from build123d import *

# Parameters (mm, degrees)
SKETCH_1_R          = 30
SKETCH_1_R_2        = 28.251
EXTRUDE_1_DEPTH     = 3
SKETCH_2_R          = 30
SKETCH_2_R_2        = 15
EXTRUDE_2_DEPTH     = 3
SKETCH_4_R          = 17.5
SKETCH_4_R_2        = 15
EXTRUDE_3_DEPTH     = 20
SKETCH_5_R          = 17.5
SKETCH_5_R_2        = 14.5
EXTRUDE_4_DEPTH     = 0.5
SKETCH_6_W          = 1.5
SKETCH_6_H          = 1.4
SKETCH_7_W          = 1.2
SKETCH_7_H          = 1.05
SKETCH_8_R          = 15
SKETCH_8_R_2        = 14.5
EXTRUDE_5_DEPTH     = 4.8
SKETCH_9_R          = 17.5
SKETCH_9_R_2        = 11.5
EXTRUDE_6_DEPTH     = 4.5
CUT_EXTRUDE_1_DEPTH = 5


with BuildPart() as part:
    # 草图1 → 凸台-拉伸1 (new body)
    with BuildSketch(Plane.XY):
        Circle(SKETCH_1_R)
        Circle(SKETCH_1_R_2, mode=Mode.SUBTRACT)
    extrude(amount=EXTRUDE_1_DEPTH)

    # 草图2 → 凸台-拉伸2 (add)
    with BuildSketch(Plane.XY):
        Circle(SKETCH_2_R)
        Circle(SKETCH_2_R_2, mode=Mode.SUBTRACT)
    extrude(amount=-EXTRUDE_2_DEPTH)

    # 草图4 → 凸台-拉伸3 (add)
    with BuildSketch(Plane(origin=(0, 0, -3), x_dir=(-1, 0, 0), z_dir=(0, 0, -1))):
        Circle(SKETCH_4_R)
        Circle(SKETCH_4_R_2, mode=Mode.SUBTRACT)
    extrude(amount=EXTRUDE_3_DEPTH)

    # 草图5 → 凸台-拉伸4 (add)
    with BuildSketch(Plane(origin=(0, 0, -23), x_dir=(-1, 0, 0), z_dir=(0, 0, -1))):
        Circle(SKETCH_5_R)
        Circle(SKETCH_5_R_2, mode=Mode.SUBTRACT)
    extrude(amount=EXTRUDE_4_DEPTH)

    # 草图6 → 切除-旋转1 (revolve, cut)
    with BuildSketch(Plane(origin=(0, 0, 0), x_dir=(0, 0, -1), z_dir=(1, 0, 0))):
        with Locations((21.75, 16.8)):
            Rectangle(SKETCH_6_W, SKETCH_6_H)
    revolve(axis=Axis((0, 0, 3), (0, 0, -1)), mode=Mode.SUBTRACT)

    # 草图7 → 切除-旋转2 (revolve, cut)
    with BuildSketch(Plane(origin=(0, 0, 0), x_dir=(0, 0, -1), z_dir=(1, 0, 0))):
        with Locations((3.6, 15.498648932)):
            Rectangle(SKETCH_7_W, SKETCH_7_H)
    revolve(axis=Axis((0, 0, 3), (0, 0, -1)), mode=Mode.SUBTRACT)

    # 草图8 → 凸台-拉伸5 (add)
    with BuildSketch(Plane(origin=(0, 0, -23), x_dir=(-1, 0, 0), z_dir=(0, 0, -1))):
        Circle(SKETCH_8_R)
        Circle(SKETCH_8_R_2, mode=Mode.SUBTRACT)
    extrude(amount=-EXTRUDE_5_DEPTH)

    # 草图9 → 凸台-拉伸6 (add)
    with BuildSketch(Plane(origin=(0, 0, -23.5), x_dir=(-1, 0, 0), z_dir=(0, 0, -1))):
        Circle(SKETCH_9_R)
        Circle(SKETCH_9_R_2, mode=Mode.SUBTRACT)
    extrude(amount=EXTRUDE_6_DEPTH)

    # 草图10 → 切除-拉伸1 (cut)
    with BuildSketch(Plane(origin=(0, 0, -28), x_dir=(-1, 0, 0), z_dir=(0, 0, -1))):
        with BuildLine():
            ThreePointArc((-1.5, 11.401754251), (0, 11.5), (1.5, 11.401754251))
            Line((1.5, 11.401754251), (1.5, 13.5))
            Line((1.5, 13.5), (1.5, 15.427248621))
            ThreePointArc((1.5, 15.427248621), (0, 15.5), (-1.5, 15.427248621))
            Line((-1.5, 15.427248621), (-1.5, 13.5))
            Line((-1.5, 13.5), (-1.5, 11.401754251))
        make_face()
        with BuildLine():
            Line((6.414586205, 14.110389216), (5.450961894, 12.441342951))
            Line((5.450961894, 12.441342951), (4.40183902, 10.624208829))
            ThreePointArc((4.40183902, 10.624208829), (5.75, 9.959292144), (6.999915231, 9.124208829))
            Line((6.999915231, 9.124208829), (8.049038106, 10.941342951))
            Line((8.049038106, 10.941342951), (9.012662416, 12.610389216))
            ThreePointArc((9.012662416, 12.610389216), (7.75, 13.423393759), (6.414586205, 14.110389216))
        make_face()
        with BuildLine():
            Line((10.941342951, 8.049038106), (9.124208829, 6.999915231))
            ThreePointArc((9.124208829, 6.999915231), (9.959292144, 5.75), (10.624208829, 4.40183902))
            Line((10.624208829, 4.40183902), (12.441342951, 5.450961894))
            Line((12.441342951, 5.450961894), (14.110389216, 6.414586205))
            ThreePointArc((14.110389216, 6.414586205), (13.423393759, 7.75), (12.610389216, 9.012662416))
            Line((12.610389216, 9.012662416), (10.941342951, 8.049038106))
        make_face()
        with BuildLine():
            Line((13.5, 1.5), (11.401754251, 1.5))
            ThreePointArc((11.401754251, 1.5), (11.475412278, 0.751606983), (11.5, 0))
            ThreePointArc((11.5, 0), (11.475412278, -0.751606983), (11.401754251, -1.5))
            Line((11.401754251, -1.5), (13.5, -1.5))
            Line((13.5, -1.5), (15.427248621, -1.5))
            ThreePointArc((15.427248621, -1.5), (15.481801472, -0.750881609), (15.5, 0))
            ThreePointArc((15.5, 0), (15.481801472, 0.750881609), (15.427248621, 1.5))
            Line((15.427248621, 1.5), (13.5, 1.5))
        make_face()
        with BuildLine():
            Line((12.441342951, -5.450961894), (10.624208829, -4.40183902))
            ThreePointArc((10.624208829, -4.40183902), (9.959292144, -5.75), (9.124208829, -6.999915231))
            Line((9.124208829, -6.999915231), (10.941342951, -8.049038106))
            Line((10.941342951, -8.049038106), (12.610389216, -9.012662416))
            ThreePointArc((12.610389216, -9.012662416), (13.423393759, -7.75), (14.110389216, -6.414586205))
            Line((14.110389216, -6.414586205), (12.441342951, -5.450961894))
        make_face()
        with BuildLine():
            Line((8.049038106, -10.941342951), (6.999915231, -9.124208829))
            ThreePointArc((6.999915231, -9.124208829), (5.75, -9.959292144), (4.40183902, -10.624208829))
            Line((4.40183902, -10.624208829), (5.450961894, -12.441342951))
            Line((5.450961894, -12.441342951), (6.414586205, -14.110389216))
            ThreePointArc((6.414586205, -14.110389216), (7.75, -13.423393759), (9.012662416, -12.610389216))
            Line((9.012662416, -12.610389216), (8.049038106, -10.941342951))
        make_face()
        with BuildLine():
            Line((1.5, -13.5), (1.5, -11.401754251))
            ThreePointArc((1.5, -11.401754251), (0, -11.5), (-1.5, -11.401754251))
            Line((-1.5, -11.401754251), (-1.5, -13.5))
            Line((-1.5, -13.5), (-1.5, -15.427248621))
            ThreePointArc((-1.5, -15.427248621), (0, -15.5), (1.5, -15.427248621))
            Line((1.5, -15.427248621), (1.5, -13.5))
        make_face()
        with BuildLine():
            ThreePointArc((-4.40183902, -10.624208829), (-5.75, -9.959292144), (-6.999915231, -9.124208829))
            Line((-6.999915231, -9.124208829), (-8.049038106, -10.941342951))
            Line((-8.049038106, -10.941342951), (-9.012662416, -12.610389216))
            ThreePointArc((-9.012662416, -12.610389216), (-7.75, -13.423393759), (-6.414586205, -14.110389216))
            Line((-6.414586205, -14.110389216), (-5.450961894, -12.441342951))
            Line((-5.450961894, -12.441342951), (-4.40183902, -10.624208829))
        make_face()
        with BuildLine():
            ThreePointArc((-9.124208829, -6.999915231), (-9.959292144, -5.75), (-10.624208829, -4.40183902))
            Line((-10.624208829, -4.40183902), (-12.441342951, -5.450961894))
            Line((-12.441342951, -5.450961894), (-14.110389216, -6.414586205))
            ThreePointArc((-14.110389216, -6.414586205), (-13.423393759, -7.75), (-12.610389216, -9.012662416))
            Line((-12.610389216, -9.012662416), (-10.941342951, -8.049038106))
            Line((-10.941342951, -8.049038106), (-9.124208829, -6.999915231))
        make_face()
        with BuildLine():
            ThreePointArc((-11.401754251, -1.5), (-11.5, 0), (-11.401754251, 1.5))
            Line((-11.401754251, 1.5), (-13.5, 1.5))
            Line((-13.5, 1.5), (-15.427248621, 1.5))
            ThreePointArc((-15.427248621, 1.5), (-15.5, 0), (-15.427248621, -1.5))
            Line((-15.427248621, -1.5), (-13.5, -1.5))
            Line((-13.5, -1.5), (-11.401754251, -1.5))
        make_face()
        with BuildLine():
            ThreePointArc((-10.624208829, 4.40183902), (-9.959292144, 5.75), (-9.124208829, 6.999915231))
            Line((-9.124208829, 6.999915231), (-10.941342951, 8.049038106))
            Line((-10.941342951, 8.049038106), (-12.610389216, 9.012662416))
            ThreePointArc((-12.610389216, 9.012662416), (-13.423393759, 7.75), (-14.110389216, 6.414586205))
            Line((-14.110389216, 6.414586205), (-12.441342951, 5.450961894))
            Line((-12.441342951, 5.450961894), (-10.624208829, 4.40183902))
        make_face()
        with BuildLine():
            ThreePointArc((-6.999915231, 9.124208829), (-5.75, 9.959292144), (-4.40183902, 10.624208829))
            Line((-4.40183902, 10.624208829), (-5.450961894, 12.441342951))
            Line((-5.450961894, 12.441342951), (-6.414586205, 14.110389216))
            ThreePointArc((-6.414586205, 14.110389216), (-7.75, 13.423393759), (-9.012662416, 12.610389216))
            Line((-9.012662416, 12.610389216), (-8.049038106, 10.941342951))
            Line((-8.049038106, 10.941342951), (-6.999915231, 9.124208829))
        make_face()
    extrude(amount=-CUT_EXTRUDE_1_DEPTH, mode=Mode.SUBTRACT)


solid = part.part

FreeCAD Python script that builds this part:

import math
import FreeCAD as App
import Part
import Sketcher
Q = App.Units.Quantity


def add_polygon(sketch, points):
    """Adds a closed chain of lines whose ends are joined by coincident constraints."""
    first, n = sketch.GeometryCount, len(points)
    for a, b in zip(points, points[1:] + points[:1]):
        sketch.addGeometry(Part.LineSegment(App.Vector(*a, 0), App.Vector(*b, 0)), False)
    for i in range(n):
        sketch.addConstraint(Sketcher.Constraint("Coincident", first + i, 2, first + (i + 1) % n, 1))

doc = App.newDocument("Part")
body = doc.addObject("PartDesign::Body", "Body")

# Sketch on XY plane
sketch1 = doc.addObject("Sketcher::SketchObject", "Sketch")
body.addObject(sketch1)
sketch1.AttachmentSupport = (doc.XY_Plane, [""])
sketch1.MapMode = "FlatFace"
sketch1.addGeometry([
    Part.Circle(App.Vector(0, 0, 0), App.Vector(0, 0, 1), 30),
    Part.Circle(App.Vector(0, 0, 0), App.Vector(0, 0, 1), 28),
], False)
sketch1.addConstraint([
    Sketcher.Constraint("Coincident", 0, 3, -1, 1),
    Sketcher.Constraint("Coincident", 1, 3, -1, 1),
    Sketcher.Constraint("Diameter", 0, Q("60 mm")),
    Sketcher.Constraint("Diameter", 1, Q("56.502 mm")),
])
pad1 = doc.addObject("PartDesign::Pad", "Pad")
body.addObject(pad1)
pad1.Profile = sketch1
pad1.Length = 3

# Sketch on XY plane
sketch2 = doc.addObject("Sketcher::SketchObject", "Sketch001")
body.addObject(sketch2)
sketch2.AttachmentSupport = (doc.XY_Plane, [""])
sketch2.MapMode = "FlatFace"
sketch2.addGeometry([
    Part.Circle(App.Vector(0, 0, 0), App.Vector(0, 0, 1), 30),
    Part.Circle(App.Vector(0, 0, 0), App.Vector(0, 0, 1), 15),
], False)
sketch2.addConstraint([
    Sketcher.Constraint("Coincident", 0, 3, -1, 1),
    Sketcher.Constraint("Coincident", 1, 3, -1, 1),
    Sketcher.Constraint("Diameter", 0, Q("60 mm")),
    Sketcher.Constraint("Diameter", 1, Q("30 mm")),
])
pad2 = doc.addObject("PartDesign::Pad", "Pad001")
body.addObject(pad2)
pad2.Profile = sketch2
pad2.Length = 3
pad2.Reversed = True

# Sketch on XY plane
sketch3 = doc.addObject("Sketcher::SketchObject", "Sketch002")
body.addObject(sketch3)
sketch3.AttachmentSupport = (doc.XY_Plane, [""])
sketch3.MapMode = "FlatFace"
sketch3.AttachmentOffset = App.Placement(App.Vector(0, 0, -3), App.Rotation())
sketch3.addGeometry([
    Part.Circle(App.Vector(0, 0, 0), App.Vector(0, 0, 1), 18),
    Part.Circle(App.Vector(0, 0, 0), App.Vector(0, 0, 1), 15),
], False)
sketch3.addConstraint([
    Sketcher.Constraint("Coincident", 0, 3, -1, 1),
    Sketcher.Constraint("Coincident", 1, 3, -1, 1),
    Sketcher.Constraint("Diameter", 0, Q("35 mm")),
    Sketcher.Constraint("Diameter", 1, Q("30 mm")),
])
pad3 = doc.addObject("PartDesign::Pad", "Pad002")
body.addObject(pad3)
pad3.Profile = sketch3
pad3.Length = 20
pad3.Reversed = True

# Sketch on XY plane
sketch4 = doc.addObject("Sketcher::SketchObject", "Sketch003")
body.addObject(sketch4)
sketch4.AttachmentSupport = (doc.XY_Plane, [""])
sketch4.MapMode = "FlatFace"
sketch4.AttachmentOffset = App.Placement(App.Vector(0, 0, -23), App.Rotation())
sketch4.addGeometry([
    Part.Circle(App.Vector(0, 0, 0), App.Vector(0, 0, 1), 18),
    Part.Circle(App.Vector(0, 0, 0), App.Vector(0, 0, 1), 14),
], False)
sketch4.addConstraint([
    Sketcher.Constraint("Coincident", 0, 3, -1, 1),
    Sketcher.Constraint("Coincident", 1, 3, -1, 1),
    Sketcher.Constraint("Diameter", 0, Q("35 mm")),
    Sketcher.Constraint("Diameter", 1, Q("29 mm")),
])
pad4 = doc.addObject("PartDesign::Pad", "Pad003")
body.addObject(pad4)
pad4.Profile = sketch4
pad4.Length = 0.5
pad4.Reversed = True

# Sketch on YZ plane
sketch5 = doc.addObject("Sketcher::SketchObject", "Sketch004")
body.addObject(sketch5)
sketch5.AttachmentSupport = (doc.YZ_Plane, [""])
sketch5.MapMode = "FlatFace"
add_polygon(sketch5, [(17.5, -21), (16.1, -21), (16.1, -22.5), (17.5, -22.5)])  # lines 0-3
sketch5.addConstraint([
    Sketcher.Constraint("Horizontal", 0),
    Sketcher.Constraint("Vertical", 1),
    Sketcher.Constraint("Horizontal", 2),
    Sketcher.Constraint("Vertical", 3),
    Sketcher.Constraint("DistanceX", 0, 2, 0, 1, Q("1.4 mm")),
    Sketcher.Constraint("DistanceY", 1, 2, 1, 1, Q("1.5 mm")),
    Sketcher.Constraint("DistanceY", 0, 2, -1, 1, Q("21 mm")),
    Sketcher.Constraint("DistanceX", -1, 1, 0, 2, Q("16.1 mm")),
])
groove = doc.addObject("PartDesign::Groove", "Groove")
body.addObject(groove)
groove.Profile = sketch5
groove.ReferenceAxis = (sketch5, ["V_Axis"])
groove.Angle = 360

# Sketch on YZ plane
sketch6 = doc.addObject("Sketcher::SketchObject", "Sketch005")
body.addObject(sketch6)
sketch6.AttachmentSupport = (doc.YZ_Plane, [""])
sketch6.MapMode = "FlatFace"
add_polygon(sketch6, [(16, -3), (15, -3), (15, -4.2), (16, -4.2)])  # lines 0-3
sketch6.addConstraint([
    Sketcher.Constraint("Horizontal", 0),
    Sketcher.Constraint("Vertical", 1),
    Sketcher.Constraint("Horizontal", 2),
    Sketcher.Constraint("Vertical", 3),
    Sketcher.Constraint("DistanceY", 1, 2, 1, 1, Q("1.2 mm")),
    Sketcher.Constraint("DistanceY", 0, 2, -1, 1, Q("3 mm")),
    Sketcher.Constraint("DistanceX", 0, 2, 0, 1, Q("1.05 mm")),
    Sketcher.Constraint("DistanceX", -1, 1, 0, 2, Q("14.973649 mm")),
])
groove2 = doc.addObject("PartDesign::Groove", "Groove001")
body.addObject(groove2)
groove2.Profile = sketch6
groove2.ReferenceAxis = (sketch6, ["V_Axis"])
groove2.Angle = 360

# Sketch on XY plane
sketch7 = doc.addObject("Sketcher::SketchObject", "Sketch006")
body.addObject(sketch7)
sketch7.AttachmentSupport = (doc.XY_Plane, [""])
sketch7.MapMode = "FlatFace"
sketch7.AttachmentOffset = App.Placement(App.Vector(0, 0, -23), App.Rotation())
sketch7.addGeometry([
    Part.Circle(App.Vector(0, 0, 0), App.Vector(0, 0, 1), 15),
    Part.Circle(App.Vector(0, 0, 0), App.Vector(0, 0, 1), 14),
], False)
sketch7.addConstraint([
    Sketcher.Constraint("Coincident", 0, 3, -1, 1),
    Sketcher.Constraint("Coincident", 1, 3, -1, 1),
    Sketcher.Constraint("Diameter", 0, Q("30 mm")),
    Sketcher.Constraint("Diameter", 1, Q("29 mm")),
])
pad5 = doc.addObject("PartDesign::Pad", "Pad004")
body.addObject(pad5)
pad5.Profile = sketch7
pad5.Length = 4.8

# Sketch on XY plane
sketch8 = doc.addObject("Sketcher::SketchObject", "Sketch007")
body.addObject(sketch8)
sketch8.AttachmentSupport = (doc.XY_Plane, [""])
sketch8.MapMode = "FlatFace"
sketch8.AttachmentOffset = App.Placement(App.Vector(0, 0, -23.5), App.Rotation())
sketch8.addGeometry([
    Part.Circle(App.Vector(0, 0, 0), App.Vector(0, 0, 1), 18),
    Part.Circle(App.Vector(0, 0, 0), App.Vector(0, 0, 1), 12),
], False)
sketch8.addConstraint([
    Sketcher.Constraint("Coincident", 0, 3, -1, 1),
    Sketcher.Constraint("Coincident", 1, 3, -1, 1),
    Sketcher.Constraint("Diameter", 0, Q("35 mm")),
    Sketcher.Constraint("Diameter", 1, Q("23 mm")),
])
pad6 = doc.addObject("PartDesign::Pad", "Pad005")
body.addObject(pad6)
pad6.Profile = sketch8
pad6.Length = 4.5
pad6.Reversed = True

# Sketch on XY plane
sketch9 = doc.addObject("Sketcher::SketchObject", "Sketch008")
body.addObject(sketch9)
sketch9.AttachmentSupport = (doc.XY_Plane, [""])
sketch9.MapMode = "FlatFace"
sketch9.AttachmentOffset = App.Placement(App.Vector(0, 0, -28), App.Rotation())
sketch9.addGeometry([
    Part.ArcOfCircle(Part.Circle(App.Vector(0, 0, 0), App.Vector(0, 0, 1), 11.5), math.radians(82.51), math.radians(97.49)),  # 0
    Part.LineSegment(App.Vector(-1.5, 11.4, 0), App.Vector(-1.5, 15.4, 0)),  # 1
    Part.ArcOfCircle(Part.Circle(App.Vector(0, 0, 0), App.Vector(0, 0, 1), 15.5), math.radians(84.45), math.radians(95.55)),  # 2
    Part.LineSegment(App.Vector(1.5, 15.4, 0), App.Vector(1.5, 11.4, 0)),  # 3
    Part.LineSegment(App.Vector(-6.4, 14.1, 0), App.Vector(-5.5, 12.4, 0)),  # 4
    Part.LineSegment(App.Vector(-5.5, 12.4, 0), App.Vector(-4.4, 10.6, 0)),  # 5
    Part.ArcOfCircle(Part.Circle(App.Vector(0, 0, 0), App.Vector(0, 0, 1), 11.5), math.radians(112.51), math.radians(127.49)),  # 6
    Part.LineSegment(App.Vector(-7, 9.1, 0), App.Vector(-8, 10.9, 0)),  # 7
    Part.LineSegment(App.Vector(-8, 10.9, 0), App.Vector(-9, 12.6, 0)),  # 8
    Part.ArcOfCircle(Part.Circle(App.Vector(0, 0, 0), App.Vector(0, 0, 1), 15.5), math.radians(114.45), math.radians(125.55)),  # 9
    Part.LineSegment(App.Vector(-10.9, 8, 0), App.Vector(-9.1, 7, 0)),  # 10
    Part.ArcOfCircle(Part.Circle(App.Vector(0, 0, 0), App.Vector(0, 0, 1), 11.5), math.radians(142.51), math.radians(157.49)),  # 11
    Part.LineSegment(App.Vector(-10.6, 4.4, 0), App.Vector(-12.4, 5.5, 0)),  # 12
    Part.LineSegment(App.Vector(-12.4, 5.5, 0), App.Vector(-14.1, 6.4, 0)),  # 13
    Part.ArcOfCircle(Part.Circle(App.Vector(0, 0, 0), App.Vector(0, 0, 1), 15.5), math.radians(144.45), math.radians(155.55)),  # 14
    Part.LineSegment(App.Vector(-12.6, 9, 0), App.Vector(-10.9, 8, 0)),  # 15
    Part.ArcOfCircle(Part.Circle(App.Vector(0, 0, 0), App.Vector(0, 0, 1), 11.5), math.radians(172.51), math.radians(180)),  # 16
    Part.ArcOfCircle(Part.Circle(App.Vector(0, 0, 0), App.Vector(0, 0, 1), 11.5), math.radians(180), math.radians(187.49)),  # 17
    Part.LineSegment(App.Vector(-11.4, -1.5, 0), App.Vector(-15.4, -1.5, 0)),  # 18
    Part.ArcOfCircle(Part.Circle(App.Vector(0, 0, 0), App.Vector(0, 0, 1), 15.5), math.radians(180), math.radians(185.55)),  # 19
    Part.ArcOfCircle(Part.Circle(App.Vector(0, 0, 0), App.Vector(0, 0, 1), 15.5), math.radians(174.45), math.radians(180)),  # 20
    Part.LineSegment(App.Vector(-15.4, 1.5, 0), App.Vector(-11.4, 1.5, 0)),  # 21
    Part.LineSegment(App.Vector(-12.4, -5.5, 0), App.Vector(-10.6, -4.4, 0)),  # 22
    Part.ArcOfCircle(Part.Circle(App.Vector(0, 0, 0), App.Vector(0, 0, 1), 11.5), math.radians(-157.49), math.radians(-142.51)),  # 23
    Part.LineSegment(App.Vector(-9.1, -7, 0), App.Vector(-10.9, -8, 0)),  # 24
    Part.LineSegment(App.Vector(-10.9, -8, 0), App.Vector(-12.6, -9, 0)),  # 25
    Part.ArcOfCircle(Part.Circle(App.Vector(0, 0, 0), App.Vector(0, 0, 1), 15.5), math.radians(-155.55), math.radians(-144.45)),  # 26
    Part.LineSegment(App.Vector(-14.1, -6.4, 0), App.Vector(-12.4, -5.5, 0)),  # 27
    Part.LineSegment(App.Vector(-8, -10.9, 0), App.Vector(-7, -9.1, 0)),  # 28
    Part.ArcOfCircle(Part.Circle(App.Vector(0, 0, 0), App.Vector(0, 0, 1), 11.5), math.radians(-127.49), math.radians(-112.51)),  # 29
    Part.LineSegment(App.Vector(-4.4, -10.6, 0), App.Vector(-5.5, -12.4, 0)),  # 30
    Part.LineSegment(App.Vector(-5.5, -12.4, 0), App.Vector(-6.4, -14.1, 0)),  # 31
    Part.ArcOfCircle(Part.Circle(App.Vector(0, 0, 0), App.Vector(0, 0, 1), 15.5), math.radians(-125.55), math.radians(-114.45)),  # 32
    Part.LineSegment(App.Vector(-9, -12.6, 0), App.Vector(-8, -10.9, 0)),  # 33
    Part.ArcOfCircle(Part.Circle(App.Vector(0, 0, 0), App.Vector(0, 0, 1), 11.5), math.radians(-97.49), math.radians(-82.51)),  # 34
    Part.LineSegment(App.Vector(1.5, -11.4, 0), App.Vector(1.5, -15.4, 0)),  # 35
    Part.ArcOfCircle(Part.Circle(App.Vector(0, 0, 0), App.Vector(0, 0, 1), 15.5), math.radians(-95.55), math.radians(-84.45)),  # 36
    Part.LineSegment(App.Vector(-1.5, -15.4, 0), App.Vector(-1.5, -11.4, 0)),  # 37
    Part.ArcOfCircle(Part.Circle(App.Vector(0, 0, 0), App.Vector(0, 0, 1), 11.5), math.radians(-67.49), math.radians(-52.51)),  # 38
    Part.LineSegment(App.Vector(7, -9.1, 0), App.Vector(8, -10.9, 0)),  # 39
    Part.LineSegment(App.Vector(8, -10.9, 0), App.Vector(9, -12.6, 0)),  # 40
    Part.ArcOfCircle(Part.Circle(App.Vector(0, 0, 0), App.Vector(0, 0, 1), 15.5), math.radians(-65.55), math.radians(-54.45)),  # 41
    Part.LineSegment(App.Vector(6.4, -14.1, 0), App.Vector(5.5, -12.4, 0)),  # 42
    Part.LineSegment(App.Vector(5.5, -12.4, 0), App.Vector(4.4, -10.6, 0)),  # 43
    Part.ArcOfCircle(Part.Circle(App.Vector(0, 0, 0), App.Vector(0, 0, 1), 11.5), math.radians(-37.49), math.radians(-22.51)),  # 44
    Part.LineSegment(App.Vector(10.6, -4.4, 0), App.Vector(12.4, -5.5, 0)),  # 45
    Part.LineSegment(App.Vector(12.4, -5.5, 0), App.Vector(14.1, -6.4, 0)),  # 46
    Part.ArcOfCircle(Part.Circle(App.Vector(0, 0, 0), App.Vector(0, 0, 1), 15.5), math.radians(-35.55), math.radians(-24.45)),  # 47
    Part.LineSegment(App.Vector(12.6, -9, 0), App.Vector(10.9, -8, 0)),  # 48
    Part.LineSegment(App.Vector(10.9, -8, 0), App.Vector(9.1, -7, 0)),  # 49
    Part.ArcOfCircle(Part.Circle(App.Vector(0, 0, 0), App.Vector(0, 0, 1), 11.5), math.radians(-7.49), math.radians(7.49)),  # 50
    Part.LineSegment(App.Vector(11.4, 1.5, 0), App.Vector(15.4, 1.5, 0)),  # 51
    Part.ArcOfCircle(Part.Circle(App.Vector(0, 0, 0), App.Vector(0, 0, 1), 15.5), math.radians(-5.55), math.radians(5.55)),  # 52
    Part.LineSegment(App.Vector(15.4, -1.5, 0), App.Vector(11.4, -1.5, 0)),  # 53
    Part.ArcOfCircle(Part.Circle(App.Vector(0, 0, 0), App.Vector(0, 0, 1), 11.5), math.radians(22.51), math.radians(37.49)),  # 54
    Part.LineSegment(App.Vector(9.1, 7, 0), App.Vector(10.9, 8, 0)),  # 55
    Part.LineSegment(App.Vector(10.9, 8, 0), App.Vector(12.6, 9, 0)),  # 56
    Part.ArcOfCircle(Part.Circle(App.Vector(0, 0, 0), App.Vector(0, 0, 1), 15.5), math.radians(24.45), math.radians(35.55)),  # 57
    Part.LineSegment(App.Vector(14.1, 6.4, 0), App.Vector(12.4, 5.5, 0)),  # 58
    Part.LineSegment(App.Vector(12.4, 5.5, 0), App.Vector(10.6, 4.4, 0)),  # 59
    Part.ArcOfCircle(Part.Circle(App.Vector(0, 0, 0), App.Vector(0, 0, 1), 11.5), math.radians(52.51), math.radians(67.49)),  # 60
    Part.LineSegment(App.Vector(4.4, 10.6, 0), App.Vector(5.5, 12.4, 0)),  # 61
    Part.LineSegment(App.Vector(5.5, 12.4, 0), App.Vector(6.4, 14.1, 0)),  # 62
    Part.ArcOfCircle(Part.Circle(App.Vector(0, 0, 0), App.Vector(0, 0, 1), 15.5), math.radians(54.45), math.radians(65.55)),  # 63
    Part.LineSegment(App.Vector(9, 12.6, 0), App.Vector(8, 10.9, 0)),  # 64
    Part.LineSegment(App.Vector(8, 10.9, 0), App.Vector(7, 9.1, 0)),  # 65
], False)
sketch9.addConstraint([
    Sketcher.Constraint("Coincident", 0, 2, 1, 1),
    Sketcher.Constraint("Coincident", 1, 2, 2, 2),
    Sketcher.Constraint("Coincident", 2, 1, 3, 1),
    Sketcher.Constraint("Coincident", 3, 2, 0, 1),
    Sketcher.Constraint("Coincident", 4, 2, 5, 1),
    Sketcher.Constraint("Coincident", 5, 2, 6, 1),
    Sketcher.Constraint("Coincident", 6, 2, 7, 1),
    Sketcher.Constraint("Coincident", 7, 2, 8, 1),
    Sketcher.Constraint("Coincident", 8, 2, 9, 2),
    Sketcher.Constraint("Coincident", 9, 1, 4, 1),
    Sketcher.Constraint("Coincident", 10, 2, 11, 1),
    Sketcher.Constraint("Coincident", 11, 2, 12, 1),
    Sketcher.Constraint("Coincident", 12, 2, 13, 1),
    Sketcher.Constraint("Coincident", 13, 2, 14, 2),
    Sketcher.Constraint("Coincident", 14, 1, 15, 1),
    Sketcher.Constraint("Coincident", 15, 2, 10, 1),
    Sketcher.Constraint("Tangent", 16, 2, 17, 1),
    Sketcher.Constraint("Coincident", 17, 2, 18, 1),
    Sketcher.Constraint("Coincident", 18, 2, 19, 2),
    Sketcher.Constraint("Tangent", 19, 1, 20, 2),
    Sketcher.Constraint("Coincident", 20, 1, 21, 1),
    Sketcher.Constraint("Coincident", 21, 2, 16, 1),
    Sketcher.Constraint("Coincident", 22, 2, 23, 1),
    Sketcher.Constraint("Coincident", 23, 2, 24, 1),
    Sketcher.Constraint("Coincident", 24, 2, 25, 1),
    Sketcher.Constraint("Coincident", 25, 2, 26, 2),
    Sketcher.Constraint("Coincident", 26, 1, 27, 1),
    Sketcher.Constraint("Coincident", 27, 2, 22, 1),
    Sketcher.Constraint("Coincident", 28, 2, 29, 1),
    Sketcher.Constraint("Coincident", 29, 2, 30, 1),
    Sketcher.Constraint("Coincident", 30, 2, 31, 1),
    Sketcher.Constraint("Coincident", 31, 2, 32, 2),
    Sketcher.Constraint("Coincident", 32, 1, 33, 1),
    Sketcher.Constraint("Coincident", 33, 2, 28, 1),
    Sketcher.Constraint("Coincident", 34, 2, 35, 1),
    Sketcher.Constraint("Coincident", 35, 2, 36, 2),
    Sketcher.Constraint("Coincident", 36, 1, 37, 1),
    Sketcher.Constraint("Coincident", 37, 2, 34, 1),
    Sketcher.Constraint("Coincident", 38, 2, 39, 1),
    Sketcher.Constraint("Coincident", 39, 2, 40, 1),
    Sketcher.Constraint("Coincident", 40, 2, 41, 2),
    Sketcher.Constraint("Coincident", 41, 1, 42, 1),
    Sketcher.Constraint("Coincident", 42, 2, 43, 1),
    Sketcher.Constraint("Coincident", 43, 2, 38, 1),
    Sketcher.Constraint("Coincident", 44, 2, 45, 1),
    Sketcher.Constraint("Coincident", 45, 2, 46, 1),
    Sketcher.Constraint("Coincident", 46, 2, 47, 2),
    Sketcher.Constraint("Coincident", 47, 1, 48, 1),
    Sketcher.Constraint("Coincident", 48, 2, 49, 1),
    Sketcher.Constraint("Coincident", 49, 2, 44, 1),
    Sketcher.Constraint("Coincident", 50, 2, 51, 1),
    Sketcher.Constraint("Coincident", 51, 2, 52, 2),
    Sketcher.Constraint("Coincident", 52, 1, 53, 1),
    Sketcher.Constraint("Coincident", 53, 2, 50, 1),
    Sketcher.Constraint("Coincident", 54, 2, 55, 1),
    Sketcher.Constraint("Coincident", 55, 2, 56, 1),
    Sketcher.Constraint("Coincident", 56, 2, 57, 2),
    Sketcher.Constraint("Coincident", 57, 1, 58, 1),
    Sketcher.Constraint("Coincident", 58, 2, 59, 1),
    Sketcher.Constraint("Coincident", 59, 2, 54, 1),
    Sketcher.Constraint("Coincident", 60, 2, 61, 1),
    Sketcher.Constraint("Coincident", 61, 2, 62, 1),
    Sketcher.Constraint("Coincident", 62, 2, 63, 2),
    Sketcher.Constraint("Coincident", 63, 1, 64, 1),
    Sketcher.Constraint("Coincident", 64, 2, 65, 1),
    Sketcher.Constraint("Coincident", 65, 2, 60, 1),
    Sketcher.Constraint("Vertical", 1),
    Sketcher.Constraint("Vertical", 3),
    Sketcher.Constraint("Horizontal", 18),
    Sketcher.Constraint("Horizontal", 21),
    Sketcher.Constraint("Vertical", 35),
    Sketcher.Constraint("Vertical", 37),
    Sketcher.Constraint("Horizontal", 51),
    Sketcher.Constraint("Horizontal", 53),
    Sketcher.Constraint("Coincident", 0, 3, -1, 1),
    Sketcher.Constraint("Coincident", 2, 3, -1, 1),
    Sketcher.Constraint("Coincident", 6, 3, -1, 1),
    Sketcher.Constraint("Coincident", 9, 3, -1, 1),
    Sketcher.Constraint("Coincident", 11, 3, -1, 1),
    Sketcher.Constraint("Coincident", 14, 3, -1, 1),
    Sketcher.Constraint("Coincident", 16, 3, -1, 1),
    Sketcher.Constraint("Coincident", 19, 3, -1, 1),
    Sketcher.Constraint("Coincident", 23, 3, -1, 1),
    Sketcher.Constraint("Coincident", 26, 3, -1, 1),
    Sketcher.Constraint("Coincident", 29, 3, -1, 1),
    Sketcher.Constraint("Coincident", 32, 3, -1, 1),
    Sketcher.Constraint("Coincident", 34, 3, -1, 1),
    Sketcher.Constraint("Coincident", 36, 3, -1, 1),
    Sketcher.Constraint("Coincident", 38, 3, -1, 1),
    Sketcher.Constraint("Coincident", 41, 3, -1, 1),
    Sketcher.Constraint("Coincident", 44, 3, -1, 1),
    Sketcher.Constraint("Coincident", 47, 3, -1, 1),
    Sketcher.Constraint("Coincident", 50, 3, -1, 1),
    Sketcher.Constraint("Coincident", 52, 3, -1, 1),
    Sketcher.Constraint("Coincident", 54, 3, -1, 1),
    Sketcher.Constraint("Coincident", 57, 3, -1, 1),
    Sketcher.Constraint("Coincident", 60, 3, -1, 1),
    Sketcher.Constraint("Coincident", 63, 3, -1, 1),
    Sketcher.Constraint("Equal", 0, 6),
    Sketcher.Constraint("Equal", 2, 9),
    Sketcher.Constraint("Equal", 6, 11),
    Sketcher.Constraint("Equal", 9, 14),
    Sketcher.Constraint("Equal", 11, 16),
    Sketcher.Constraint("Equal", 16, 17),
    Sketcher.Constraint("Equal", 14, 19),
    Sketcher.Constraint("Equal", 19, 20),
    Sketcher.Constraint("Equal", 17, 23),
    Sketcher.Constraint("Equal", 20, 26),
    Sketcher.Constraint("Equal", 23, 29),
    Sketcher.Constraint("Equal", 26, 32),
    Sketcher.Constraint("Equal", 29, 34),
    Sketcher.Constraint("Equal", 32, 36),
    Sketcher.Constraint("Equal", 34, 38),
    Sketcher.Constraint("Equal", 36, 41),
    Sketcher.Constraint("Equal", 38, 44),
    Sketcher.Constraint("Equal", 41, 47),
    Sketcher.Constraint("Equal", 44, 50),
    Sketcher.Constraint("Equal", 47, 52),
    Sketcher.Constraint("Equal", 50, 54),
    Sketcher.Constraint("Equal", 52, 57),
    Sketcher.Constraint("Equal", 54, 60),
    Sketcher.Constraint("Equal", 57, 63),
    Sketcher.Constraint("Symmetric", 7, 2, 39, 2, -1, 1),
    Sketcher.Constraint("Symmetric", 4, 2, 42, 2, -1, 1),
    Sketcher.Constraint("Symmetric", 12, 2, 45, 2, -1, 1),
    Sketcher.Constraint("Symmetric", 15, 2, 48, 2, -1, 1),
    Sketcher.Constraint("Symmetric", 24, 2, 55, 2, -1, 1),
    Sketcher.Constraint("Symmetric", 27, 2, 58, 2, -1, 1),
    Sketcher.Constraint("Symmetric", 30, 2, 61, 2, -1, 1),
    Sketcher.Constraint("Symmetric", 33, 2, 64, 2, -1, 1),
    Sketcher.Constraint("Symmetric", 33, 2, 39, 2, -2),
    Sketcher.Constraint("Symmetric", 30, 2, 42, 2, -2),
    Sketcher.Constraint("Symmetric", 27, 2, 45, 2, -2),
    Sketcher.Constraint("Symmetric", 24, 2, 48, 2, -2),
    Sketcher.Constraint("PointOnObject", 16, 2, -1),
    Sketcher.Constraint("PointOnObject", 19, 1, -1),
    Sketcher.Constraint("Parallel", 4, 5),
    Sketcher.Constraint("Parallel", 5, 7),
    Sketcher.Constraint("Parallel", 7, 8),
    Sketcher.Constraint("Parallel", 10, 12),
    Sketcher.Constraint("Parallel", 12, 13),
    Sketcher.Constraint("Parallel", 13, 15),
    Sketcher.Constraint("Perpendicular", 8, 22),
    Sketcher.Constraint("Parallel", 22, 24),
    Sketcher.Constraint("Parallel", 24, 25),
    Sketcher.Constraint("Parallel", 25, 27),
    Sketcher.Constraint("Perpendicular", 15, 28),
    Sketcher.Constraint("Parallel", 28, 30),
    Sketcher.Constraint("Parallel", 30, 31),
    Sketcher.Constraint("Parallel", 31, 33),
    Sketcher.Constraint("Perpendicular", 27, 39),
    Sketcher.Constraint("Parallel", 39, 40),
    Sketcher.Constraint("Parallel", 40, 42),
    Sketcher.Constraint("Parallel", 42, 43),
    Sketcher.Constraint("Perpendicular", 33, 45),
    Sketcher.Constraint("Parallel", 45, 46),
    Sketcher.Constraint("Parallel", 46, 48),
    Sketcher.Constraint("Parallel", 48, 49),
    Sketcher.Constraint("Perpendicular", 43, 55),
    Sketcher.Constraint("Parallel", 55, 56),
    Sketcher.Constraint("Parallel", 56, 58),
    Sketcher.Constraint("Parallel", 58, 59),
    Sketcher.Constraint("Perpendicular", 49, 61),
    Sketcher.Constraint("Parallel", 61, 62),
    Sketcher.Constraint("Parallel", 62, 64),
    Sketcher.Constraint("Parallel", 64, 65),
    Sketcher.Constraint("Horizontal", 1, 2, 2, 1),
    Sketcher.Constraint("Horizontal", 35, 2, 36, 1),
    Sketcher.Constraint("Horizontal", 28, 2, 38, 2),
    Sketcher.Constraint("Horizontal", 21, 2, 50, 2),
    Sketcher.Constraint("Horizontal", 18, 2, 52, 1),
    Sketcher.Constraint("Vertical", 18, 2, 20, 1),
    Sketcher.Constraint("Vertical", 3, 2, 34, 2),
    Sketcher.Constraint("Equal", 53, 1),
    Sketcher.Constraint("Equal", 5, 7),
    Sketcher.Constraint("Equal", 4, 8),
    Sketcher.Constraint("Equal", 7, 10),
    Sketcher.Constraint("Equal", 10, 12),
    Sketcher.Constraint("Equal", 8, 13),
    Sketcher.Constraint("Equal", 13, 15),
    Sketcher.Constraint("Radius", 0, Q("11.5 mm")),
    Sketcher.Constraint("Radius", 2, Q("15.5 mm")),
    Sketcher.Constraint("Angle", 4, Q("-60 deg")),
    Sketcher.Constraint("DistanceX", 0, 2, -1, 1, Q("1.5 mm")),
    Sketcher.Constraint("Distance", 4, Q("1.927249 mm")),
    Sketcher.Constraint("DistanceX", 4, 2, -1, 1, Q("5.450962 mm")),
])
pocket1 = doc.addObject("PartDesign::Pocket", "Pocket")
body.addObject(pocket1)
pocket1.Profile = sketch9
pocket1.Length = 5
pocket1.Reversed = True

doc.recompute()
